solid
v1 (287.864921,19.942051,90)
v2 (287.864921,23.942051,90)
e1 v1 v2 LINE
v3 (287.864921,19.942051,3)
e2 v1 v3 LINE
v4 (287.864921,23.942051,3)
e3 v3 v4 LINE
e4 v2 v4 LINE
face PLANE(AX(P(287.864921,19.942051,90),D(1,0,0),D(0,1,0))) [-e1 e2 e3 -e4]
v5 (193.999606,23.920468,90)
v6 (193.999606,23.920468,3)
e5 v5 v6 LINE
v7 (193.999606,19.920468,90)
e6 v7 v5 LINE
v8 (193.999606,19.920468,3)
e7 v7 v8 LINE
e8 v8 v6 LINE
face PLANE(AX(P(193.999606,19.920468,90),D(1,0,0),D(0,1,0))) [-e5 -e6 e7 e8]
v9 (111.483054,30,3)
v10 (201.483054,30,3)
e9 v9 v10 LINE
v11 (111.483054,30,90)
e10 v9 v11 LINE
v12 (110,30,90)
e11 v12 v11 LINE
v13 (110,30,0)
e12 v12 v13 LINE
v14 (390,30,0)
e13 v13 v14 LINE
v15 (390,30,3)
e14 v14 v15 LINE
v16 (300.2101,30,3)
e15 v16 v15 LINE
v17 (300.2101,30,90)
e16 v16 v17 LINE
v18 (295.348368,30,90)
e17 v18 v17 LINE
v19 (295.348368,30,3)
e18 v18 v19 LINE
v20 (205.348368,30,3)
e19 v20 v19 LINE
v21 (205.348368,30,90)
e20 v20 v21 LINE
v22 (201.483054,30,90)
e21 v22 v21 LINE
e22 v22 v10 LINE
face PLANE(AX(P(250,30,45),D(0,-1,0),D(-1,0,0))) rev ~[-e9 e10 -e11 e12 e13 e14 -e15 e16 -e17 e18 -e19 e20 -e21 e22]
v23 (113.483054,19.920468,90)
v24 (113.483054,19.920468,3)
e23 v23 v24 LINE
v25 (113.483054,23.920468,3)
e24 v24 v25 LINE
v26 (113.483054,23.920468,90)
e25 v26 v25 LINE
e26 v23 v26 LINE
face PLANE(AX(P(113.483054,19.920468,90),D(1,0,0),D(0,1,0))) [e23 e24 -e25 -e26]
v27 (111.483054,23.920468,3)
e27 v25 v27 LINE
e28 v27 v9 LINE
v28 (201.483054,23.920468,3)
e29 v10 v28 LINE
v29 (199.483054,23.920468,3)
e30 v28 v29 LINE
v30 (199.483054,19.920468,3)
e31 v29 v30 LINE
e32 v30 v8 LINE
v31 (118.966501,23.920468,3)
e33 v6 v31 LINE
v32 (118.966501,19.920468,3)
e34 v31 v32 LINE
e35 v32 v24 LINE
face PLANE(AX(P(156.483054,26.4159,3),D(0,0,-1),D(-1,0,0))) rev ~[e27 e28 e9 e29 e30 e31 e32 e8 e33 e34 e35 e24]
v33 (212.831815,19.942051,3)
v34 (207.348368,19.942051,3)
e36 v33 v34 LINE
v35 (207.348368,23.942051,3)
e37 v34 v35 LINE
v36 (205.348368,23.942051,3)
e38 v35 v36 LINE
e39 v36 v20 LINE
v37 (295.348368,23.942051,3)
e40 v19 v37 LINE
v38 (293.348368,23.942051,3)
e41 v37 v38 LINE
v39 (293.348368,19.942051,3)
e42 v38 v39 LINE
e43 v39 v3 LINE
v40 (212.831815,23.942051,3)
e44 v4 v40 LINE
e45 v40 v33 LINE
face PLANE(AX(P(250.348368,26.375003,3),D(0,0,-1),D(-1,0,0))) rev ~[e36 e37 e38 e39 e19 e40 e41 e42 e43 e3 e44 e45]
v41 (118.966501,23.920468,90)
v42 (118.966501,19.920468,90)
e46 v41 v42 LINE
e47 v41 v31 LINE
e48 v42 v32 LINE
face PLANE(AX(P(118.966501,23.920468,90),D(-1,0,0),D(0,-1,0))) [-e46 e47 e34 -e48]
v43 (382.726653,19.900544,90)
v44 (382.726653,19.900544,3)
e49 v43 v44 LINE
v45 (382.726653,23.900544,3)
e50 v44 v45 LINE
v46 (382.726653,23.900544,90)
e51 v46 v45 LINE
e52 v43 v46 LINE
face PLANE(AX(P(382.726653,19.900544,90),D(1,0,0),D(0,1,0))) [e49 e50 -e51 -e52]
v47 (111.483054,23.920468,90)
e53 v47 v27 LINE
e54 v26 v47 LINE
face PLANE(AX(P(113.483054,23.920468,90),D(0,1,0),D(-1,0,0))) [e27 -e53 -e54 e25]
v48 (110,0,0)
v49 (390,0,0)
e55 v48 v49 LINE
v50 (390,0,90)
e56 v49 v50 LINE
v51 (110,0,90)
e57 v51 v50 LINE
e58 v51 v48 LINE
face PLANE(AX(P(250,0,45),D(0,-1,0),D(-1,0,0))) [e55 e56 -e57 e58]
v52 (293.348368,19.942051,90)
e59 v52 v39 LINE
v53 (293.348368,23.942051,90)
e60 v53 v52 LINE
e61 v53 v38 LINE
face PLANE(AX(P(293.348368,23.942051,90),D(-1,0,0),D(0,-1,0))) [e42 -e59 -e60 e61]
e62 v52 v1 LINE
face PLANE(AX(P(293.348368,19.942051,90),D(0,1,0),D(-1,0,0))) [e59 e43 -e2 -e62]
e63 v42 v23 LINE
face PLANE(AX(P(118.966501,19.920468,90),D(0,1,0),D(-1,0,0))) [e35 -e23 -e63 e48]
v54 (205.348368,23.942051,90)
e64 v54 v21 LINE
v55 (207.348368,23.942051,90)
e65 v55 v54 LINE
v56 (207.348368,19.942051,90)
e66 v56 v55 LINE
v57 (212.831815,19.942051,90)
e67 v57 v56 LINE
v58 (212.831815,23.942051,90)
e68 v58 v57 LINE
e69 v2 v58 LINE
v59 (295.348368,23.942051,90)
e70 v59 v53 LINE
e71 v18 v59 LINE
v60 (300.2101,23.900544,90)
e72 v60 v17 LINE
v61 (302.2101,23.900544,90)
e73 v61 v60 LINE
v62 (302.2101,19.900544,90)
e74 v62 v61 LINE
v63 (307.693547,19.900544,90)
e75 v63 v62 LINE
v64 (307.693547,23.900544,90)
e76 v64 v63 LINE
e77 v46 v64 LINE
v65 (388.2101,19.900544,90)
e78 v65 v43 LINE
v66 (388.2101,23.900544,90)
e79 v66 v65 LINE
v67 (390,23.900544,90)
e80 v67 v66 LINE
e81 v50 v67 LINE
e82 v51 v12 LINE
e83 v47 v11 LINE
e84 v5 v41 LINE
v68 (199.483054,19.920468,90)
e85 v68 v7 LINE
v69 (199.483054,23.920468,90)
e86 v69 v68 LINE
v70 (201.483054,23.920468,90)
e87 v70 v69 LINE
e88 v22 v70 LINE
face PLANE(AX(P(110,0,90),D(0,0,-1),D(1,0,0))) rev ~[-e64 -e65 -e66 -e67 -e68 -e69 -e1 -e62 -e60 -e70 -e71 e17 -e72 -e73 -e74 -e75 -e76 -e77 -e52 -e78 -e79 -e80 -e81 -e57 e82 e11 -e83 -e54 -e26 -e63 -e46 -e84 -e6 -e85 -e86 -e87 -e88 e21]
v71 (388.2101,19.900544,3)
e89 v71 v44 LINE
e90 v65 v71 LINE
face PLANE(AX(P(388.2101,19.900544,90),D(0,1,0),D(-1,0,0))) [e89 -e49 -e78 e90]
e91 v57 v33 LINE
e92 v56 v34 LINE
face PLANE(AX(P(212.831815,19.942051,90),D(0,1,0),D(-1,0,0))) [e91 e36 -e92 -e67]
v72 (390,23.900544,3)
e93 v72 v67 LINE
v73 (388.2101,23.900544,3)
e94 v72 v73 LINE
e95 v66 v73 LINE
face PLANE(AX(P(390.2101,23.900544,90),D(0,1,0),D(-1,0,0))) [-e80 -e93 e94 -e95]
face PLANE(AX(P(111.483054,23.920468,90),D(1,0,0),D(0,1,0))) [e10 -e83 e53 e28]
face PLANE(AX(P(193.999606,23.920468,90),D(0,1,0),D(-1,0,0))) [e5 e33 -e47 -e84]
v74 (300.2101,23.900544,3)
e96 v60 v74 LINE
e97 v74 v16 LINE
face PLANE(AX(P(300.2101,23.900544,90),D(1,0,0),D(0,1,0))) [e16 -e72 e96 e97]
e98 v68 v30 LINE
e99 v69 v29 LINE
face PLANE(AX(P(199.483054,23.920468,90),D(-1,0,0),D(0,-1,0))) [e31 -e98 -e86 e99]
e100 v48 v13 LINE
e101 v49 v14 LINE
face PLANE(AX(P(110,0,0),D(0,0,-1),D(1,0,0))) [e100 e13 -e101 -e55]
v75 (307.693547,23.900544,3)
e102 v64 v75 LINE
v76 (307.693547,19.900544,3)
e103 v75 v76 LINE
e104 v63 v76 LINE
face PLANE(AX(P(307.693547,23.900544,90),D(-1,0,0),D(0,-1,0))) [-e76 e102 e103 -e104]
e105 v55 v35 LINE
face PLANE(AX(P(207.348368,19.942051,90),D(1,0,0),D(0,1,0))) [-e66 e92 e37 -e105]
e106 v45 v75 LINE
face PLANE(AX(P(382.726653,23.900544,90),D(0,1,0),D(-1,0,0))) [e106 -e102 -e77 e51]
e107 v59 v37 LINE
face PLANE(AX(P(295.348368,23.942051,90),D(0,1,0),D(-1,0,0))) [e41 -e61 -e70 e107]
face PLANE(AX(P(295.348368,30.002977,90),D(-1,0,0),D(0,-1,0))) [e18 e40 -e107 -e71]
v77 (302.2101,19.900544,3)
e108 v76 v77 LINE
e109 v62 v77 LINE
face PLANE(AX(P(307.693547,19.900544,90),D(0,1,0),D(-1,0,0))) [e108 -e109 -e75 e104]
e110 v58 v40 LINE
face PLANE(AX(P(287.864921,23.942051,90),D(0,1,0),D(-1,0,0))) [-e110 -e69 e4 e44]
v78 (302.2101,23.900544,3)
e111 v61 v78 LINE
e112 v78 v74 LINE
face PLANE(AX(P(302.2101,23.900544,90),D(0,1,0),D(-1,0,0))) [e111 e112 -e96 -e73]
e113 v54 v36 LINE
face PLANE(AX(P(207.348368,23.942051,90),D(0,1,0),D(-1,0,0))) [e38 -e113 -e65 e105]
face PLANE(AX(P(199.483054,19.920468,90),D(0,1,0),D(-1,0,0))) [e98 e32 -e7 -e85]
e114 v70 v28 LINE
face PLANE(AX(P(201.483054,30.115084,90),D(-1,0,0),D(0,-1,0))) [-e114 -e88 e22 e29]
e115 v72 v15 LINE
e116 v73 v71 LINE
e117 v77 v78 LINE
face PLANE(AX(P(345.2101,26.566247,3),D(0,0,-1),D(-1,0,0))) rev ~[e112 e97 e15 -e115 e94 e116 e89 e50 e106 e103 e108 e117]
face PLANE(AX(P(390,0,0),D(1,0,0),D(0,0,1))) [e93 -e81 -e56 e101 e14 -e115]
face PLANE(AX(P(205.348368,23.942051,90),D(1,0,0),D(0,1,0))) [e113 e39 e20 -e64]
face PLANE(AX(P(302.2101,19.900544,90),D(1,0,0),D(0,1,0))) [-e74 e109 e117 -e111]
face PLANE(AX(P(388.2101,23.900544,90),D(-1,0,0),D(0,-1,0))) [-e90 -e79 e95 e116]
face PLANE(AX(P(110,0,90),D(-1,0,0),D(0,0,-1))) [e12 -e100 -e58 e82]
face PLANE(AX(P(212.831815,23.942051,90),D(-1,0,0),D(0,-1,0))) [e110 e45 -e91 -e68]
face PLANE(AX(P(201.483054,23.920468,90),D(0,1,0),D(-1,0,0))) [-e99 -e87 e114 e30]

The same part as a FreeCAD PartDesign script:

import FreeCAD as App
import Part
import Sketcher

V = App.Vector


def add_polygon(sketch, points):
    """Adds a closed chain of lines whose ends are joined by coincident constraints."""
    first, n = sketch.GeometryCount, len(points)
    for a, b in zip(points, points[1:] + points[:1]):
        sketch.addGeometry(Part.LineSegment(App.Vector(*a, 0), App.Vector(*b, 0)), False)
    for i in range(n):
        sketch.addConstraint(Sketcher.Constraint("Coincident", first + i, 2, first + (i + 1) % n, 1))

doc = App.newDocument("Part")
body = doc.addObject("PartDesign::Body", "Body")

sketch1 = doc.addObject("Sketcher::SketchObject", "Sketch")
body.addObject(sketch1)
sketch1.AttachmentSupport = (doc.XZ_Plane, [""])
sketch1.MapMode = "FlatFace"
add_polygon(sketch1, [(110, 90), (390, 90), (390, 0), (110, 0)])
sketch1.addConstraint([
    Sketcher.Constraint("Horizontal", 0),
    Sketcher.Constraint("Vertical", 1),
    Sketcher.Constraint("Horizontal", 2),
    Sketcher.Constraint("Vertical", 3),
    Sketcher.Constraint("PointOnObject", 1, 2, -1),
    Sketcher.Constraint("DistanceX", 0, 1, 0, 2, 280.0),
    Sketcher.Constraint("DistanceY", 1, 2, 1, 1, 90.0),
    Sketcher.Constraint("DistanceX", -1, 1, 0, 2, 390.0),
])
pad1 = doc.addObject("PartDesign::Pad", "Pad")
body.addObject(pad1)
pad1.Profile = sketch1
pad1.Length = 30
pad1.Reversed = True

sketch2 = doc.addObject("Sketcher::SketchObject", "Sketch001")
body.addObject(sketch2)
sketch2.AttachmentSupport = (doc.XY_Plane, [""])
sketch2.MapMode = "FlatFace"
sketch2.AttachmentOffset = App.Placement(V(0, 0, 90), App.Rotation())
add_polygon(sketch2, [(111.5, 23.9), (113.5, 23.9), (113.5, 19.9), (119, 19.9), (119, 23.9), (194, 23.9), (194, 19.9), (199.5, 19.9), (199.5, 23.9), (201.5, 23.9), (201.5, 30.1), (111.5, 30.1)])
add_polygon(sketch2, [(300.2, 23.9), (302.2, 23.9), (302.2, 19.9), (307.7, 19.9), (307.7, 23.9), (382.7, 23.9), (382.7, 19.9), (388.2, 19.9), (388.2, 23.9), (390.2, 23.9), (390.2, 30.5), (300.2, 30.5)])
add_polygon(sketch2, [(205.3, 23.9), (207.3, 23.9), (207.3, 19.9), (212.8, 19.9), (212.8, 23.9), (287.9, 23.9), (287.9, 19.9), (293.3, 19.9), (293.3, 23.9), (295.3, 23.9), (295.3, 30), (205.3, 30)])
sketch2.addConstraint([
    Sketcher.Constraint("Horizontal", 0),
    Sketcher.Constraint("Vertical", 1),
    Sketcher.Constraint("Horizontal", 2),
    Sketcher.Constraint("Vertical", 3),
    Sketcher.Constraint("Horizontal", 4),
    Sketcher.Constraint("Vertical", 5),
    Sketcher.Constraint("Horizontal", 6),
    Sketcher.Constraint("Vertical", 7),
    Sketcher.Constraint("Horizontal", 8),
    Sketcher.Constraint("Vertical", 9),
    Sketcher.Constraint("Horizontal", 10),
    Sketcher.Constraint("Vertical", 11),
    Sketcher.Constraint("Horizontal", 12),
    Sketcher.Constraint("Vertical", 13),
    Sketcher.Constraint("Horizontal", 14),
    Sketcher.Constraint("Vertical", 15),
    Sketcher.Constraint("Horizontal", 16),
    Sketcher.Constraint("Vertical", 17),
    Sketcher.Constraint("Horizontal", 18),
    Sketcher.Constraint("Vertical", 19),
    Sketcher.Constraint("Horizontal", 20),
    Sketcher.Constraint("Vertical", 21),
    Sketcher.Constraint("Horizontal", 22),
    Sketcher.Constraint("Vertical", 23),
    Sketcher.Constraint("Horizontal", 24),
    Sketcher.Constraint("Vertical", 25),
    Sketcher.Constraint("Horizontal", 26),
    Sketcher.Constraint("Vertical", 27),
    Sketcher.Constraint("Horizontal", 28),
    Sketcher.Constraint("Vertical", 29),
    Sketcher.Constraint("Horizontal", 30),
    Sketcher.Constraint("Vertical", 31),
    Sketcher.Constraint("Horizontal", 32),
    Sketcher.Constraint("Vertical", 33),
    Sketcher.Constraint("Horizontal", 34),
    Sketcher.Constraint("Vertical", 35),
    Sketcher.Constraint("Horizontal", 0, 2, 3, 2),
    Sketcher.Constraint("Horizontal", 2, 2, 5, 2),
    Sketcher.Constraint("Horizontal", 4, 2, 7, 2),
    Sketcher.Constraint("Horizontal", 12, 2, 15, 2),
    Sketcher.Constraint("Horizontal", 14, 2, 17, 2),
    Sketcher.Constraint("Horizontal", 16, 2, 19, 2),
    Sketcher.Constraint("Horizontal", 24, 2, 27, 2),
    Sketcher.Constraint("Horizontal", 26, 2, 29, 2),
    Sketcher.Constraint("Horizontal", 28, 2, 31, 2),
    Sketcher.Constraint("Equal", 2, 6),
    Sketcher.Constraint("Equal", 0, 8),
    Sketcher.Constraint("Equal", 8, 12),
    Sketcher.Constraint("Equal", 6, 14),
    Sketcher.Constraint("Equal", 4, 16),
    Sketcher.Constraint("Equal", 14, 18),
    Sketcher.Constraint("Equal", 12, 20),
    Sketcher.Constraint("Equal", 20, 24),
    Sketcher.Constraint("Equal", 18, 26),
    Sketcher.Constraint("Equal", 16, 28),
    Sketcher.Constraint("Equal", 26, 30),
    Sketcher.Constraint("Equal", 24, 32),
    Sketcher.Constraint("Equal", 7, 13),
    Sketcher.Constraint("Equal", 19, 25),
    Sketcher.Constraint("DistanceX", 0, 1, 0, 2, 2.0),
    Sketcher.Constraint("DistanceX", 10, 2, 10, 1, 90.0),
    Sketcher.Constraint("DistanceY", 1, 2, 1, 1, 4.0),
    Sketcher.Constraint("DistanceX", -1, 1, 2, 2, 118.966501),
    Sketcher.Constraint("DistanceX", -1, 1, 12, 2, 302.2101),
    Sketcher.Constraint("DistanceY", 33, 2, 22, 2, 0.4564),
    Sketcher.Constraint("DistanceX", 2, 1, 2, 2, 5.483447),
    Sketcher.Constraint("DistanceY", 9, 1, 9, 2, 6.194616),
    Sketcher.Constraint("DistanceY", 21, 1, 21, 2, 6.558832),
    Sketcher.Constraint("DistanceY", 33, 1, 33, 2, 6.060926),
    Sketcher.Constraint("DistanceY", -1, 1, 24, 2, 23.942051),
    Sketcher.Constraint("DistanceX", -1, 1, 28, 2, 287.864921),
    Sketcher.Constraint("DistanceY", 12, 2, 9, 2, 6.21454),
])
pocket1 = doc.addObject("PartDesign::Pocket", "Pocket")
body.addObject(pocket1)
pocket1.Profile = sketch2
pocket1.Length = 87

doc.recompute()
